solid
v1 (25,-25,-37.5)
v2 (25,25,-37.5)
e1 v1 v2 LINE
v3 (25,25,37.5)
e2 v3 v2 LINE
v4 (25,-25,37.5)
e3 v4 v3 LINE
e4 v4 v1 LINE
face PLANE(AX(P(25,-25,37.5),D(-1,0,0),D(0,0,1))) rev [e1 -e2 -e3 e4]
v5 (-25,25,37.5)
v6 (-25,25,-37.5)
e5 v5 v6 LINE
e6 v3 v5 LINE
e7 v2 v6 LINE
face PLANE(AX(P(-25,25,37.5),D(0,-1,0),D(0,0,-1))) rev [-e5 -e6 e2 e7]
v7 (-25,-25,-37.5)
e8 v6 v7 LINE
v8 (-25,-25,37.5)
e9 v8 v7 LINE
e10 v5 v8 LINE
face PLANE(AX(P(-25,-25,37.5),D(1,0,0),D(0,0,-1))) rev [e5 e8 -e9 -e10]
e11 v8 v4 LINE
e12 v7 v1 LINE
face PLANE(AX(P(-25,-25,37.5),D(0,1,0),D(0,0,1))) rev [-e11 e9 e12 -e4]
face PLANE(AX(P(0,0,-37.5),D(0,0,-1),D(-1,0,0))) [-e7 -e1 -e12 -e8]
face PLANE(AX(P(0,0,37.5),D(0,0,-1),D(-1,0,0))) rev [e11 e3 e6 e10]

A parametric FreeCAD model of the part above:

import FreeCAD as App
import Part
import Sketcher
from FreeCAD import Vector

doc = App.newDocument("Part")
body = doc.addObject("PartDesign::Body", "Body")

# Sketch on XY plane
sketch1 = body.newObject("Sketcher::SketchObject", "Sketch")
sketch1.AttachmentSupport = (doc.getObject("XY_Plane"), [""])
sketch1.MapMode = "FlatFace"
sketch1.addGeometry(Part.LineSegment(Vector(-25, 25, 0), Vector(-25, -25, 0)), False)
sketch1.addGeometry(Part.LineSegment(Vector(-25, -25, 0), Vector(25, -25, 0)), False)
sketch1.addGeometry(Part.LineSegment(Vector(25, -25, 0), Vector(25, 25, 0)), False)
sketch1.addGeometry(Part.LineSegment(Vector(25, 25, 0), Vector(-25, 25, 0)), False)
sketch1.addConstraint(Sketcher.Constraint("Coincident", 0, 2, 1, 1))
sketch1.addConstraint(Sketcher.Constraint("Coincident", 1, 2, 2, 1))
sketch1.addConstraint(Sketcher.Constraint("Coincident", 2, 2, 3, 1))
sketch1.addConstraint(Sketcher.Constraint("Coincident", 3, 2, 0, 1))
sketch1.addConstraint(Sketcher.Constraint("Vertical", 0))
sketch1.addConstraint(Sketcher.Constraint("Horizontal", 1))
sketch1.addConstraint(Sketcher.Constraint("Vertical", 2))
sketch1.addConstraint(Sketcher.Constraint("Horizontal", 3))
sketch1.addConstraint(Sketcher.Constraint("Symmetric", 0, 2, 2, 2, -1, 1))
sketch1.addConstraint(Sketcher.Constraint("Equal", 3, 0))
sketch1.addConstraint(Sketcher.Constraint("DistanceX", 1, 1, 1, 2, 50.0))
pad1 = body.newObject("PartDesign::Pad", "Pad")
pad1.Profile = sketch1
pad1.Length = 75
pad1.Midplane = True

doc.recompute()
